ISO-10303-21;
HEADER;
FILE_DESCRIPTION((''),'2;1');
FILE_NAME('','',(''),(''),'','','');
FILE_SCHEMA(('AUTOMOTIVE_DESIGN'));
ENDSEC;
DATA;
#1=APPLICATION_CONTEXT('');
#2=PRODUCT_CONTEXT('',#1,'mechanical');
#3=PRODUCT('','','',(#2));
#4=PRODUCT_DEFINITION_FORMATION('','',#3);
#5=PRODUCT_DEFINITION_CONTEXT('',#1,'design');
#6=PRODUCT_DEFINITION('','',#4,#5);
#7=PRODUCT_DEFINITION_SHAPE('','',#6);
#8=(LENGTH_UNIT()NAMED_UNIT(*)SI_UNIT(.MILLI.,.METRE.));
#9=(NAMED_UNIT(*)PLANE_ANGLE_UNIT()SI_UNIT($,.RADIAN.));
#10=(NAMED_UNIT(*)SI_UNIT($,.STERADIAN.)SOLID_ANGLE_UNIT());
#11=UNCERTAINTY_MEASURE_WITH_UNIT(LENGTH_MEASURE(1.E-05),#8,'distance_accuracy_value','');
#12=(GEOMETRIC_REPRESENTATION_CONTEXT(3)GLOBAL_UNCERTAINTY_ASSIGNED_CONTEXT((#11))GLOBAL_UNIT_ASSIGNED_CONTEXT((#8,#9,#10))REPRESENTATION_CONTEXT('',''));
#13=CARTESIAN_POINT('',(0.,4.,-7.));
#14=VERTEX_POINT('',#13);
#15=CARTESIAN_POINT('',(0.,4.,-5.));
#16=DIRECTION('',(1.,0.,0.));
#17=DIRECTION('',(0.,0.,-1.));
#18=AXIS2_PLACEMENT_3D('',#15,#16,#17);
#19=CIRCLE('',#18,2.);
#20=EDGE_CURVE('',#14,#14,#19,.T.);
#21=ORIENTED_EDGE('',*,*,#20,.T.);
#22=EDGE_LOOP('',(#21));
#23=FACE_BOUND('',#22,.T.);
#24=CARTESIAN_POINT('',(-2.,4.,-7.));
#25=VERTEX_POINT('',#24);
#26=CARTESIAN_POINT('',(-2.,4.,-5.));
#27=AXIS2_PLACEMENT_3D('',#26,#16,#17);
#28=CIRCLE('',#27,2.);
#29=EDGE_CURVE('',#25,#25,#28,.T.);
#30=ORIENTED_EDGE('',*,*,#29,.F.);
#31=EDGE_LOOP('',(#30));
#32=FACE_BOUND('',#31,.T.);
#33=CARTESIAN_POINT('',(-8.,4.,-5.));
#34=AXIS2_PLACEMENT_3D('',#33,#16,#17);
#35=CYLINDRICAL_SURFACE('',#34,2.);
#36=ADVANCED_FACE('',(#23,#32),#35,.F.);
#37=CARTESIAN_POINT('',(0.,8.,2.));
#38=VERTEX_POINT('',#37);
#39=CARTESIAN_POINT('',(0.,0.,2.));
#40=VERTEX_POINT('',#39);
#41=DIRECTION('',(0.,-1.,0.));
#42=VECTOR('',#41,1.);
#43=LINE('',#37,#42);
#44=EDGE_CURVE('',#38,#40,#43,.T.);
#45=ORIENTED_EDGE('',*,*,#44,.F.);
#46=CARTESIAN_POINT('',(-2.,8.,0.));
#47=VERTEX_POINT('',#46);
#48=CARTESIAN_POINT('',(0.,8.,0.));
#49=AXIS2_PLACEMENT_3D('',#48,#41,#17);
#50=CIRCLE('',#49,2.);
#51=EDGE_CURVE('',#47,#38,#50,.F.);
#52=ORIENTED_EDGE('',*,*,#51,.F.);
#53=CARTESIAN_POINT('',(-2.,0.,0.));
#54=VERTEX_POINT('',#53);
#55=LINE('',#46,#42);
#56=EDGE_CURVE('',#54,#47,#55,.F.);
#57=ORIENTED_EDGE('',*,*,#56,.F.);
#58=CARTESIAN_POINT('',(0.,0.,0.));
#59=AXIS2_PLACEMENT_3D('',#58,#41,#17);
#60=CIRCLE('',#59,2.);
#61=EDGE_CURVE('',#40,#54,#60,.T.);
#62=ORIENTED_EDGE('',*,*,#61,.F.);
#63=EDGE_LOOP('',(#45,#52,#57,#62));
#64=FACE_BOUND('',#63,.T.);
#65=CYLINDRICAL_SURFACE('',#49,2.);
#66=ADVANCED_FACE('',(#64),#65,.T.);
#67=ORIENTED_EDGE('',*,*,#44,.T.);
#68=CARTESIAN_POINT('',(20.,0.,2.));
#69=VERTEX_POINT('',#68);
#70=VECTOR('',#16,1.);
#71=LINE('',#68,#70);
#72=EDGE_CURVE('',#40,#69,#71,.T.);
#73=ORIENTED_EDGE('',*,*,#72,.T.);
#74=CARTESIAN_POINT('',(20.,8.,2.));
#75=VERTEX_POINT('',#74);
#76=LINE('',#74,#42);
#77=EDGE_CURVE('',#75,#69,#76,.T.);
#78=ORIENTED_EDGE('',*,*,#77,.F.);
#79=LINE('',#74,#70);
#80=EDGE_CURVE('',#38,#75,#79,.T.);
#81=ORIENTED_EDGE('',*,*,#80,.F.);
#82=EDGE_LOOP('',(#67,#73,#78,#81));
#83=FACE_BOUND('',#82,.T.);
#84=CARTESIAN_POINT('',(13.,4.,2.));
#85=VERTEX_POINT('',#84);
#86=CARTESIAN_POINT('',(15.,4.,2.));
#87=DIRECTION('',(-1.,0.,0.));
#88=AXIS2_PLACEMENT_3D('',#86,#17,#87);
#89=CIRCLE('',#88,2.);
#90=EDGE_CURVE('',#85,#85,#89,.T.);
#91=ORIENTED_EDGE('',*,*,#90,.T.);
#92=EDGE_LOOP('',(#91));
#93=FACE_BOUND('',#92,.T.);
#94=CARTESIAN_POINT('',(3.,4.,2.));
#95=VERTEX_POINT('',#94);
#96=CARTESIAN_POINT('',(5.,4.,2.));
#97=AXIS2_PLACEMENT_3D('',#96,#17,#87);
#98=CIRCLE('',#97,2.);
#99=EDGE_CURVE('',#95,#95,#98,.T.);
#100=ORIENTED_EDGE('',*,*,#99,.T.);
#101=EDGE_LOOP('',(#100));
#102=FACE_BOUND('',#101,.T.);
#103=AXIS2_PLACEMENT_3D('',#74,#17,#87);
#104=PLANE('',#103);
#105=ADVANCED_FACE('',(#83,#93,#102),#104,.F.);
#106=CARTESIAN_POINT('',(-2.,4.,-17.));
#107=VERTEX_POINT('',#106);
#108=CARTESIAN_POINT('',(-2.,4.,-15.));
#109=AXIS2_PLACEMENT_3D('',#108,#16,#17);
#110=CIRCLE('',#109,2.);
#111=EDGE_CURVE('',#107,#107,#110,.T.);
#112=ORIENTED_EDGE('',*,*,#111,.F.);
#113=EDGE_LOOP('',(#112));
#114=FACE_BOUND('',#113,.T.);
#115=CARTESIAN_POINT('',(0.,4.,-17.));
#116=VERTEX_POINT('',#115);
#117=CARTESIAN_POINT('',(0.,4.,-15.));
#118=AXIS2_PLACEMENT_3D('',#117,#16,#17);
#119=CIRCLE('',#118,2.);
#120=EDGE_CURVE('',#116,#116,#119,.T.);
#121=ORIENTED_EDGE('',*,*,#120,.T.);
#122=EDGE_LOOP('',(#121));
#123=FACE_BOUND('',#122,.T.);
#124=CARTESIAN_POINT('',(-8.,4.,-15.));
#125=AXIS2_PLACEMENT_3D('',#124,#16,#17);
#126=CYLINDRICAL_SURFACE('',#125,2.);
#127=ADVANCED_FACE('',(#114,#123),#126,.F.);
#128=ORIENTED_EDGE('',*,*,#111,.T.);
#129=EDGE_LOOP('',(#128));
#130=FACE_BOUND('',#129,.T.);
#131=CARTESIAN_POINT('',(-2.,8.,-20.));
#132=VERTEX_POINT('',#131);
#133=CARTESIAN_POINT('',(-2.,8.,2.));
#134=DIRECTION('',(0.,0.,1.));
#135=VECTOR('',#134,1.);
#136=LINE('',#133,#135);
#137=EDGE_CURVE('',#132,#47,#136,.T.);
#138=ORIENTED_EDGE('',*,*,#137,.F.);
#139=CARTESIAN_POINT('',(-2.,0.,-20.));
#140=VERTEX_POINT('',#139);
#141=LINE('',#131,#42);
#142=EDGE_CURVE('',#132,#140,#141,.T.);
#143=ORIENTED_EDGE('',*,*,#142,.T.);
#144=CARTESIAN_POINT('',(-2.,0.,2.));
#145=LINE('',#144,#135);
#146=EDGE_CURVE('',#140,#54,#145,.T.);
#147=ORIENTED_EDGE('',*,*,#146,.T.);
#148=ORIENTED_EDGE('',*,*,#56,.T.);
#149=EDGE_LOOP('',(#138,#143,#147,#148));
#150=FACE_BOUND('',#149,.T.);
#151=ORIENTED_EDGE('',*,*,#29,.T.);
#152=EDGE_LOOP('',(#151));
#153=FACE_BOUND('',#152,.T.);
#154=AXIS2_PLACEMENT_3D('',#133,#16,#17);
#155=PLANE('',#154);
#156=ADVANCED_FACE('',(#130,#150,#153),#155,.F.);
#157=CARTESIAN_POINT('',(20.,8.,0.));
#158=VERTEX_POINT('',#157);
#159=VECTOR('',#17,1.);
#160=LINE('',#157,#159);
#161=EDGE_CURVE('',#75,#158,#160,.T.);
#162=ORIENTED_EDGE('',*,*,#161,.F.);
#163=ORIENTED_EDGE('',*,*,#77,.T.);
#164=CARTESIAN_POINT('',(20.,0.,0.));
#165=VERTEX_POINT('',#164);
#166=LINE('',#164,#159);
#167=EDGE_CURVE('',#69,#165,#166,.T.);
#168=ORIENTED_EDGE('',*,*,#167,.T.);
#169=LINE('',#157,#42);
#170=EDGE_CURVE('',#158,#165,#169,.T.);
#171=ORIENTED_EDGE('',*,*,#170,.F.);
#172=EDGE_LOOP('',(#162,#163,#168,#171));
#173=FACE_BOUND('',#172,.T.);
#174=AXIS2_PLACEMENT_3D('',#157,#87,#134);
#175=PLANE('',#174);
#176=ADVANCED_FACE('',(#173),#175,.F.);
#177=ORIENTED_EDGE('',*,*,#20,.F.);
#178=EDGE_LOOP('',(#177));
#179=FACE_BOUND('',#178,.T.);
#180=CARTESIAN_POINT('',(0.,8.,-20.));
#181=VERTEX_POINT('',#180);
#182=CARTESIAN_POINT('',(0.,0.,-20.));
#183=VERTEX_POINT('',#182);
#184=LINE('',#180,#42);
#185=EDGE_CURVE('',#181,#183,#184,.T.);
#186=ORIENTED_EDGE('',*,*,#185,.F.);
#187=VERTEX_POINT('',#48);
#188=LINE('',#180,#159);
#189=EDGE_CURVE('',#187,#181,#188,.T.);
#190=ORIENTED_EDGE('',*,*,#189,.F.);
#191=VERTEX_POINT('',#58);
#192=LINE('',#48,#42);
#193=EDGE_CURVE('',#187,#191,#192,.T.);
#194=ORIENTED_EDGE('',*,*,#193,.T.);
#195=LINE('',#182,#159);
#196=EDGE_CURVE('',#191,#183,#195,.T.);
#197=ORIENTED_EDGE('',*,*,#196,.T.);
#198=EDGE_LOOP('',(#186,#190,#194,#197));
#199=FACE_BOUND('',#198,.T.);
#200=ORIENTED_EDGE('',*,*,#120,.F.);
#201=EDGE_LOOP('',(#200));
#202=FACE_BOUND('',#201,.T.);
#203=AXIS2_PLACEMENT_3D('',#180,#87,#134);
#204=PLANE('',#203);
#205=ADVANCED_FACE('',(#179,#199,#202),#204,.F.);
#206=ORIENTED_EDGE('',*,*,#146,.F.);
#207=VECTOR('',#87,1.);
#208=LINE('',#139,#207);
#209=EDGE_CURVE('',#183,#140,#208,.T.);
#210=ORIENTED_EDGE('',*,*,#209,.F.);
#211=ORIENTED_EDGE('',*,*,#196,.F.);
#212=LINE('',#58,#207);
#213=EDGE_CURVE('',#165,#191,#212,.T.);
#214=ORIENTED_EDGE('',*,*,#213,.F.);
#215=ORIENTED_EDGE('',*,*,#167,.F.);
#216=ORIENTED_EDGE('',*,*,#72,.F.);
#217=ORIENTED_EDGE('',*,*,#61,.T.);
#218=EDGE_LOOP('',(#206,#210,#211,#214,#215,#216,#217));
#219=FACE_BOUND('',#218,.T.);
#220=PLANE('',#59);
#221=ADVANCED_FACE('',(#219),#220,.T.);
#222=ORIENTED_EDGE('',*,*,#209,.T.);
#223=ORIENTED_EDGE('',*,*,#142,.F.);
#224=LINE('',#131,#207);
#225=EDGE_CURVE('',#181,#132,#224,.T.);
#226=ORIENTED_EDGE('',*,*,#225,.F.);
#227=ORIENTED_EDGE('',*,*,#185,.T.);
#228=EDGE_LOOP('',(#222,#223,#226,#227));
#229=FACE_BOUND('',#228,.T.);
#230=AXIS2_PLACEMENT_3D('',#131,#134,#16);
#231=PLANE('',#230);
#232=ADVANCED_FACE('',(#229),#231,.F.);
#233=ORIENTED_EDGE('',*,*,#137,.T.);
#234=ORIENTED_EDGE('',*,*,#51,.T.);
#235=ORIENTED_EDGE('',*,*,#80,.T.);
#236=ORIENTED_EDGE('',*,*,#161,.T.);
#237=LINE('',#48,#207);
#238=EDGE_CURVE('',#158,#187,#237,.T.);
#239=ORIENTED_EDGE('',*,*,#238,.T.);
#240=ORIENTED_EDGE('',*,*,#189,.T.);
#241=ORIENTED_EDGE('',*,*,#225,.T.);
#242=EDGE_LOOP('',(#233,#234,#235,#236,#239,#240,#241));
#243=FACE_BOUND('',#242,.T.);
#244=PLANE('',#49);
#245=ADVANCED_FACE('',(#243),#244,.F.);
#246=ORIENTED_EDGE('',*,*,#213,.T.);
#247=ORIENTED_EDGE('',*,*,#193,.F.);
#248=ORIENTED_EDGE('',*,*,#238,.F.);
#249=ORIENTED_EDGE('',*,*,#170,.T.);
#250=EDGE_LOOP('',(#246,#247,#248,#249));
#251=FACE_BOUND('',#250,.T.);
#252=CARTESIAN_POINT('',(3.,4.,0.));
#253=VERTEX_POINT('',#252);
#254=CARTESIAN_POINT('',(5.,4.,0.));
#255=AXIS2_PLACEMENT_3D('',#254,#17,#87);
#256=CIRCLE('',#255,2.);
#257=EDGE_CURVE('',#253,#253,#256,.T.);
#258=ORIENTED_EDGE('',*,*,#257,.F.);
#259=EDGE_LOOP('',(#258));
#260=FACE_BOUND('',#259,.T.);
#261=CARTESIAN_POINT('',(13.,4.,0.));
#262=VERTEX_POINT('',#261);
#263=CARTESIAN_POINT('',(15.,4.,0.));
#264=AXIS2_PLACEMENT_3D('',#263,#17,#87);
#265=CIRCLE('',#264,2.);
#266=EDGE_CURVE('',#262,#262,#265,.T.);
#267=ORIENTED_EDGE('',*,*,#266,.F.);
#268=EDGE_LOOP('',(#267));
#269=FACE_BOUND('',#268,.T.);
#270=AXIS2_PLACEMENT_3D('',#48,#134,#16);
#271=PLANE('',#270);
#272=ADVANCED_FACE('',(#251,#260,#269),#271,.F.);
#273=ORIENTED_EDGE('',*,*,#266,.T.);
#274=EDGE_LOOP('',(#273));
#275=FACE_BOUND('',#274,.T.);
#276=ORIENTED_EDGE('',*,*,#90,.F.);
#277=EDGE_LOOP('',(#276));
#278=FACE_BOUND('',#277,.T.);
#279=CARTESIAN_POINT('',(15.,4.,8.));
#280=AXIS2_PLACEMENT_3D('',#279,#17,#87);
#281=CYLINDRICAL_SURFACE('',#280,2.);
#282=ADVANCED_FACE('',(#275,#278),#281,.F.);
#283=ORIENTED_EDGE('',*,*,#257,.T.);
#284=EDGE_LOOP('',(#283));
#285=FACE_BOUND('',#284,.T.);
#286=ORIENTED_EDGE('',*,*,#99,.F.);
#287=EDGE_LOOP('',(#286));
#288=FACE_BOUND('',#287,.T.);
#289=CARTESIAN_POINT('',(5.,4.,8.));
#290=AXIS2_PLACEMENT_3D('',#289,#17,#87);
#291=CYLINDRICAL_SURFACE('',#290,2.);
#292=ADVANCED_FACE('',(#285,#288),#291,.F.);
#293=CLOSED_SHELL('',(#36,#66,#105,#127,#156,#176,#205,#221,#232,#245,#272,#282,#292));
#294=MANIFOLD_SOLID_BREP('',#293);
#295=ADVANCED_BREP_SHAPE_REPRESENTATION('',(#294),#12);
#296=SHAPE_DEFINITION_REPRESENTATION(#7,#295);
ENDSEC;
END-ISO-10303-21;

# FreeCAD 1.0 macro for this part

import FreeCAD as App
import Part
import Sketcher

V = App.Vector
Q = App.Units.Quantity


def edges_at(feature, points):
    """Names of the edges that pass closest to the given points."""
    edges = feature.Shape.Edges
    near = lambda p: min(range(len(edges)), key=lambda i: edges[i].distToShape(Part.Vertex(*p))[0])
    return sorted({f"Edge{near(p) + 1}" for p in points})


def add_polygon(sketch, points):
    """Adds a closed chain of lines whose ends are joined by coincident constraints."""
    first, n = sketch.GeometryCount, len(points)
    for a, b in zip(points, points[1:] + points[:1]):
        sketch.addGeometry(Part.LineSegment(App.Vector(*a, 0), App.Vector(*b, 0)), False)
    for i in range(n):
        sketch.addConstraint(Sketcher.Constraint("Coincident", first + i, 2, first + (i + 1) % n, 1))

doc = App.newDocument("Part")
body = doc.addObject("PartDesign::Body", "Body")

sketch1 = body.newObject("Sketcher::SketchObject", "Sketch")
sketch1.AttachmentSupport = (doc.getObject("XZ_Plane"), [""])
sketch1.MapMode = "FlatFace"
add_polygon(sketch1, [(0, 0), (0, -20), (-2, -20), (-2, 2), (20, 2), (20, 0)])
sketch1.addConstraint(Sketcher.Constraint("Vertical", 0))
sketch1.addConstraint(Sketcher.Constraint("Horizontal", 1))
sketch1.addConstraint(Sketcher.Constraint("Vertical", 2))
sketch1.addConstraint(Sketcher.Constraint("Horizontal", 3))
sketch1.addConstraint(Sketcher.Constraint("Vertical", 4))
sketch1.addConstraint(Sketcher.Constraint("Horizontal", 5))
sketch1.addConstraint(Sketcher.Constraint("Coincident", 5, 2, -1, 1))
sketch1.addConstraint(Sketcher.Constraint("Equal", 5, 0))
sketch1.addConstraint(Sketcher.Constraint("Equal", 3, 2))
sketch1.addConstraint(Sketcher.Constraint("DistanceX", 1, 2, 1, 1, Q("2 mm")))
sketch1.addConstraint(Sketcher.Constraint("DistanceX", 3, 1, 3, 2, Q("22 mm")))
pad1 = body.newObject("PartDesign::Pad", "Pad")
pad1.Profile = sketch1
pad1.Length = 8
pad1.Reversed = True

sketch2 = body.newObject("Sketcher::SketchObject", "Sketch001")
sketch2.AttachmentSupport = (doc.getObject("XY_Plane"), [""])
sketch2.MapMode = "FlatFace"
sketch2.addGeometry(Part.Circle(V(15, 4, 0), V(0, 0, 1), 2), False)
sketch2.addGeometry(Part.Circle(V(5, 4, 0), V(0, 0, 1), 2), False)
sketch2.addConstraint(Sketcher.Constraint("Equal", 0, 1))
sketch2.addConstraint(Sketcher.Constraint("Horizontal", 0, 3, 1, 3))
sketch2.addConstraint(Sketcher.Constraint("Diameter", 0, Q("4 mm")))
sketch2.addConstraint(Sketcher.Constraint("DistanceX", -1, 1, 0, 3, Q("15 mm")))
sketch2.addConstraint(Sketcher.Constraint("DistanceY", -1, 1, 0, 3, Q("4 mm")))
sketch2.addConstraint(Sketcher.Constraint("DistanceX", -1, 1, 1, 3, Q("5 mm")))
pocket1 = body.newObject("PartDesign::Pocket", "Pocket")
pocket1.Profile = sketch2
pocket1.Length = 8
pocket1.Reversed = True

sketch3 = body.newObject("Sketcher::SketchObject", "Sketch002")
sketch3.AttachmentSupport = (doc.getObject("YZ_Plane"), [""])
sketch3.MapMode = "FlatFace"
sketch3.addGeometry(Part.Circle(V(4, -5, 0), V(0, 0, 1), 2), False)
sketch3.addGeometry(Part.Circle(V(4, -15, 0), V(0, 0, 1), 2), False)
sketch3.addConstraint(Sketcher.Constraint("Equal", 0, 1))
sketch3.addConstraint(Sketcher.Constraint("Vertical", 0, 3, 1, 3))
sketch3.addConstraint(Sketcher.Constraint("Diameter", 0, Q("4 mm")))
sketch3.addConstraint(Sketcher.Constraint("DistanceX", -1, 1, 0, 3, Q("4 mm")))
sketch3.addConstraint(Sketcher.Constraint("DistanceY", 0, 3, -1, 1, Q("5 mm")))
sketch3.addConstraint(Sketcher.Constraint("DistanceY", 1, 3, -1, 1, Q("15 mm")))
pocket2 = body.newObject("PartDesign::Pocket", "Pocket001")
pocket2.Profile = sketch3
pocket2.Length = 8
doc.recompute()

fillet = body.newObject("PartDesign::Fillet", "Fillet")
fillet.Base = (pocket2, edges_at(pocket2, [(-2, 4, 2)]))
fillet.Radius = 2

doc.recompute()
